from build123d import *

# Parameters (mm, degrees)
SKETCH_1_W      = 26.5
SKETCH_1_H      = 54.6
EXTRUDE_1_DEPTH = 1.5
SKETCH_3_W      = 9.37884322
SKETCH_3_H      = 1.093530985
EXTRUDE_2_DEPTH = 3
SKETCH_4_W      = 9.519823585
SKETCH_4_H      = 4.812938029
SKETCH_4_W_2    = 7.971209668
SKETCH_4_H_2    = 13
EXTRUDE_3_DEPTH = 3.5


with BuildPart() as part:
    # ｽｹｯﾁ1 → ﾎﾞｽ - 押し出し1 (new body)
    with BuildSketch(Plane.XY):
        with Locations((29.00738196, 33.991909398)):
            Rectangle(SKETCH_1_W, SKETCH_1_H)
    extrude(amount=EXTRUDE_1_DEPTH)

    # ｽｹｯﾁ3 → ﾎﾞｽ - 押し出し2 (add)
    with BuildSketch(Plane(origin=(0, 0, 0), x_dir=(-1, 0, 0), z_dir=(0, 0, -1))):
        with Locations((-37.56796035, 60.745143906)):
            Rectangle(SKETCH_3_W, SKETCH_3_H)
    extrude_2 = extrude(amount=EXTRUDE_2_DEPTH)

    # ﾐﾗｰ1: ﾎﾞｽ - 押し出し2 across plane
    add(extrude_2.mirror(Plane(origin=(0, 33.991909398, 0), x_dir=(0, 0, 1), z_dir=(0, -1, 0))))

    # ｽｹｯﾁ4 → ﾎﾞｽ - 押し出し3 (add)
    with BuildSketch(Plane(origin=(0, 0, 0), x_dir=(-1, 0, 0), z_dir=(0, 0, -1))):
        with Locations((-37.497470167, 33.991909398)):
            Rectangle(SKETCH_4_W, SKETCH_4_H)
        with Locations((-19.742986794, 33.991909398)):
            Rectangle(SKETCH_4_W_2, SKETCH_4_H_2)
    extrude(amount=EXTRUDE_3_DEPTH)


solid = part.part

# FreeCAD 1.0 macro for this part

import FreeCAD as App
import Part
import Sketcher
Q = App.Units.Quantity


def add_polygon(sketch, points):
    """Adds a closed chain of lines whose ends are joined by coincident constraints."""
    first, n = sketch.GeometryCount, len(points)
    for a, b in zip(points, points[1:] + points[:1]):
        sketch.addGeometry(Part.LineSegment(App.Vector(*a, 0), App.Vector(*b, 0)), False)
    for i in range(n):
        sketch.addConstraint(Sketcher.Constraint("Coincident", first + i, 2, first + (i + 1) % n, 1))

doc = App.newDocument("Part")
body = doc.addObject("PartDesign::Body", "Body")

# Sketch on XY plane
sketch1 = body.newObject("Sketcher::SketchObject", "Sketch")
sketch1.AttachmentSupport = (doc.getObject("XY_Plane"), [""])
sketch1.MapMode = "FlatFace"
add_polygon(sketch1, [(15.757382, 61.291909), (15.757382, 6.691909), (42.257382, 6.691909), (42.257382, 61.291909)])  # lines 0-3
sketch1.addConstraint([
    Sketcher.Constraint("Vertical", 0),
    Sketcher.Constraint("Horizontal", 1),
    Sketcher.Constraint("Vertical", 2),
    Sketcher.Constraint("Horizontal", 3),
    Sketcher.Constraint("DistanceX", 1, 1, 1, 2, Q("26.5 mm")),
    Sketcher.Constraint("DistanceY", 0, 2, 0, 1, Q("54.6 mm")),
    Sketcher.Constraint("DistanceX", -1, 1, 0, 2, Q("15.757382 mm")),
    Sketcher.Constraint("DistanceY", -1, 1, 0, 2, Q("6.691909 mm")),
])
pad1 = body.newObject("PartDesign::Pad", "Pad")
pad1.Profile = sketch1
pad1.Length = 1.5

# Sketch on XY plane
sketch2 = body.newObject("Sketcher::SketchObject", "Sketch001")
sketch2.AttachmentSupport = (doc.getObject("XY_Plane"), [""])
sketch2.MapMode = "FlatFace"
add_polygon(sketch2, [(42.257382, 61.291909), (42.257382, 60.198378), (32.878539, 60.198378), (32.878539, 61.291909)])  # lines 0-3
sketch2.addConstraint([
    Sketcher.Constraint("Vertical", 0),
    Sketcher.Constraint("Horizontal", 1),
    Sketcher.Constraint("Vertical", 2),
    Sketcher.Constraint("Horizontal", 3),
    Sketcher.Constraint("DistanceY", 0, 2, 0, 1, Q("1.093531 mm")),
    Sketcher.Constraint("DistanceX", 1, 2, 1, 1, Q("9.378843 mm")),
    Sketcher.Constraint("DistanceX", -1, 1, 0, 2, Q("42.257382 mm")),
    Sketcher.Constraint("DistanceY", -1, 1, 0, 2, Q("60.198378 mm")),
])
pad2 = body.newObject("PartDesign::Pad", "Pad001")
pad2.Profile = sketch2
pad2.Length = 3
pad2.Reversed = True
doc.recompute()

datumplane = body.newObject("PartDesign::Plane", "DatumPlane")
datumplane.AttachmentSupport = (doc.getObject("XZ_Plane"), [""])
datumplane.MapMode = "FlatFace"
datumplane.AttachmentOffset = App.Placement(App.Vector(0, 0, -33.991909), App.Rotation())
mirrored = body.newObject("PartDesign::Mirrored", "Mirrored")
mirrored.Originals = [pad2]
mirrored.MirrorPlane = (datumplane, [""])
body.Tip = mirrored

# Sketch on XY plane
sketch3 = body.newObject("Sketcher::SketchObject", "Sketch002")
sketch3.AttachmentSupport = (doc.getObject("XY_Plane"), [""])
sketch3.MapMode = "FlatFace"
add_polygon(sketch3, [(42.257382, 36.398378), (42.257382, 31.58544), (32.737558, 31.58544), (32.737558, 36.398378)])  # lines 0-3
add_polygon(sketch3, [(23.728592, 40.491909), (23.728592, 27.491909), (15.757382, 27.491909), (15.757382, 40.491909)])  # lines 4-7
sketch3.addConstraint([
    Sketcher.Constraint("Vertical", 0),
    Sketcher.Constraint("Horizontal", 1),
    Sketcher.Constraint("Vertical", 2),
    Sketcher.Constraint("Horizontal", 3),
    Sketcher.Constraint("Vertical", 4),
    Sketcher.Constraint("Horizontal", 5),
    Sketcher.Constraint("Vertical", 6),
    Sketcher.Constraint("Horizontal", 7),
    Sketcher.Constraint("DistanceY", 4, 2, 4, 1, Q("13 mm")),
    Sketcher.Constraint("DistanceX", 5, 2, 0, 2, Q("26.5 mm")),
    Sketcher.Constraint("DistanceX", 5, 2, 5, 1, Q("7.97121 mm")),
    Sketcher.Constraint("DistanceY", 0, 2, 0, 1, Q("4.812938 mm")),
    Sketcher.Constraint("DistanceX", 1, 2, 1, 1, Q("9.519824 mm")),
    Sketcher.Constraint("DistanceX", -1, 1, 0, 2, Q("42.257382 mm")),
    Sketcher.Constraint("DistanceY", -1, 1, 0, 2, Q("31.58544 mm")),
    Sketcher.Constraint("DistanceY", -1, 1, 4, 2, Q("27.491909 mm")),
])
pad3 = body.newObject("PartDesign::Pad", "Pad002")
pad3.Profile = sketch3
pad3.Length = 3.5
pad3.Reversed = True

doc.recompute()
